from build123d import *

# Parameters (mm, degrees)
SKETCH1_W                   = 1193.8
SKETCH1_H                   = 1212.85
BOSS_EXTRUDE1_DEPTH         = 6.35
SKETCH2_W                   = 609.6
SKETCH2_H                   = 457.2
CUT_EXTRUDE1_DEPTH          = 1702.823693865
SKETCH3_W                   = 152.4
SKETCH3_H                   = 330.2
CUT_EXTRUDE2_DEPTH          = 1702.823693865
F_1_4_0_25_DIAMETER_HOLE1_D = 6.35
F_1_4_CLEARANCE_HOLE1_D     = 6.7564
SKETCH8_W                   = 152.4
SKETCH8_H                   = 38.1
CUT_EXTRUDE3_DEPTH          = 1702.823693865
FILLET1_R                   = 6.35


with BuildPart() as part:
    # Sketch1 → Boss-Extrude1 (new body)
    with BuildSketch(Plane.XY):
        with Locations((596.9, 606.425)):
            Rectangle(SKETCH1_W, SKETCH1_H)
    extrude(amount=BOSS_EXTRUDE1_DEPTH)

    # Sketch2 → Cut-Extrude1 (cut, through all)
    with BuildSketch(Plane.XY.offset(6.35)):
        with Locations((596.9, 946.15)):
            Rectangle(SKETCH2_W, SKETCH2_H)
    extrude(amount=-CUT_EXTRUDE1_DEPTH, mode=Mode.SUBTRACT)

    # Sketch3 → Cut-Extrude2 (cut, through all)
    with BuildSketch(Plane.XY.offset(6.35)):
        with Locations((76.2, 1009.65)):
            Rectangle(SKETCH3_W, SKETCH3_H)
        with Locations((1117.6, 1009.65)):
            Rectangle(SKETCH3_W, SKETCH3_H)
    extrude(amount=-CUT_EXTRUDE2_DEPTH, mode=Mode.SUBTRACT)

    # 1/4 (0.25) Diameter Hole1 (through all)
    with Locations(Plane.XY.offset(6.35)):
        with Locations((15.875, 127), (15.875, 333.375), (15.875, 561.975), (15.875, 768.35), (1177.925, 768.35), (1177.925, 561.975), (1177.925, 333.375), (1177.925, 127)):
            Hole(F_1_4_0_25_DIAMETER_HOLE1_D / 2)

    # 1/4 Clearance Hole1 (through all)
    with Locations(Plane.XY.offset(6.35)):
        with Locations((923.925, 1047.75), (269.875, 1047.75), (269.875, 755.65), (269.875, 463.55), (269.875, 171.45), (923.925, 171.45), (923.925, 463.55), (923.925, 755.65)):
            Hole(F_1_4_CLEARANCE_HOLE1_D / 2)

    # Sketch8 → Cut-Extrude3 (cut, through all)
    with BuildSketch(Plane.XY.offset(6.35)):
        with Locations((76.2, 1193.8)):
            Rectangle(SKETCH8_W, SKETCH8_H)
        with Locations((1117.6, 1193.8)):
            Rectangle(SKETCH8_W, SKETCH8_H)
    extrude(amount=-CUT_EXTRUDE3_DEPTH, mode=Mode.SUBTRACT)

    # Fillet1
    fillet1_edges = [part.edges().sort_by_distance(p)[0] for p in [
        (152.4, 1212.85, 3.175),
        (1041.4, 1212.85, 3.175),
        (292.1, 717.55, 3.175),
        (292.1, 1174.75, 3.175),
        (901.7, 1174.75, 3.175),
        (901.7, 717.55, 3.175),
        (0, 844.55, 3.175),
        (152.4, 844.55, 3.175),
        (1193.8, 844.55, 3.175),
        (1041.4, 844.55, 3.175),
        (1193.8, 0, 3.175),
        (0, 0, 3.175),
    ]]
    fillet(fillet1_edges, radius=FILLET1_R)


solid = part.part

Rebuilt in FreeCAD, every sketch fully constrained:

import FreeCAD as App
import Part
import Sketcher
Q = App.Units.Quantity


def edges_at(feature, points):
    """Names of the edges that pass closest to the given points."""
    edges = feature.Shape.Edges
    near = lambda p: min(range(len(edges)), key=lambda i: edges[i].distToShape(Part.Vertex(*p))[0])
    return sorted({f"Edge{near(p) + 1}" for p in points})


def add_polygon(sketch, points):
    """Adds a closed chain of lines whose ends are joined by coincident constraints."""
    first, n = sketch.GeometryCount, len(points)
    for a, b in zip(points, points[1:] + points[:1]):
        sketch.addGeometry(Part.LineSegment(App.Vector(*a, 0), App.Vector(*b, 0)), False)
    for i in range(n):
        sketch.addConstraint(Sketcher.Constraint("Coincident", first + i, 2, first + (i + 1) % n, 1))

doc = App.newDocument("Part")
params = doc.addObject("Spreadsheet::Sheet", "Params")
for row, (alias, value) in enumerate([
    ("sketch1_width", "47 in"),
    ("sketch1_height", "47.75 in"),
    ("pad1_length", "0.25 in"),
    ("sketch2_width", "24 in"),
    ("sketch2_height", "18 in"),
    ("sketch3_width", "6 in"),
    ("sketch3_height", "13 in"),
    ("sketch4_diameter", "0.25 in"),
    ("hole_diameter", "0.25 in"),
    ("sketch5_diameter", "0.266 in"),
    ("hole2_diameter", "0.266 in"),
    ("sketch6_width", "6 in"),
    ("sketch6_height", "1.5 in"),
    ("fillet_radius", "0.25 in"),
], start=1):
    params.set(f"A{row}", alias)
    params.set(f"B{row}", "=" + value)
    params.setAlias(f"B{row}", alias)

body = doc.addObject("PartDesign::Body", "Body")

# Sketch on XY plane
sketch1 = body.newObject("Sketcher::SketchObject", "Sketch")
sketch1.AttachmentSupport = (doc.getObject("XY_Plane"), [""])
sketch1.MapMode = "FlatFace"
add_polygon(sketch1, [(0, 1213), (0, 0), (1194, 0), (1194, 1213)])  # lines 0-3
sketch1.addConstraint([
    Sketcher.Constraint("Vertical", 0),
    Sketcher.Constraint("Horizontal", 1),
    Sketcher.Constraint("Vertical", 2),
    Sketcher.Constraint("Horizontal", 3),
    Sketcher.Constraint("Coincident", 0, 2, -1, 1),
    Sketcher.Constraint("DistanceX", 1, 1, 1, 2, Q("47 in")),
    Sketcher.Constraint("DistanceY", 0, 2, 0, 1, Q("47.75 in")),
])
sketch1.setExpression("Constraints[9]", "Params.sketch1_width")
sketch1.setExpression("Constraints[10]", "Params.sketch1_height")
pad1 = body.newObject("PartDesign::Pad", "Pad")
pad1.Profile = sketch1
pad1.setExpression("Length", "Params.pad1_length")

# Sketch on XY plane
sketch2 = body.newObject("Sketcher::SketchObject", "Sketch001")
sketch2.AttachmentSupport = (doc.getObject("XY_Plane"), [""])
sketch2.MapMode = "FlatFace"
sketch2.AttachmentOffset = App.Placement(App.Vector(0, 0, 0.25 * 25.4), App.Rotation())
add_polygon(sketch2, [(292, 1175), (292, 718), (902, 718), (902, 1175)])  # lines 0-3
sketch2.addConstraint([
    Sketcher.Constraint("Vertical", 0),
    Sketcher.Constraint("Horizontal", 1),
    Sketcher.Constraint("Vertical", 2),
    Sketcher.Constraint("Horizontal", 3),
    Sketcher.Constraint("DistanceX", 1, 1, 1, 2, Q("24 in")),
    Sketcher.Constraint("DistanceY", 0, 2, 0, 1, Q("18 in")),
    Sketcher.Constraint("DistanceX", -1, 1, 0, 2, Q("11.5 in")),
    Sketcher.Constraint("DistanceY", -1, 1, 0, 2, Q("28.25 in")),
])
sketch2.setExpression("Constraints[8]", "Params.sketch2_width")
sketch2.setExpression("Constraints[9]", "Params.sketch2_height")
pocket1 = body.newObject("PartDesign::Pocket", "Pocket")
pocket1.Profile = sketch2
pocket1.Type = "ThroughAll"

# Sketch on XY plane
sketch3 = body.newObject("Sketcher::SketchObject", "Sketch002")
sketch3.AttachmentSupport = (doc.getObject("XY_Plane"), [""])
sketch3.MapMode = "FlatFace"
sketch3.AttachmentOffset = App.Placement(App.Vector(0, 0, 0.25 * 25.4), App.Rotation())
add_polygon(sketch3, [(0, 1175), (0, 845), (152, 845), (152, 1175)])  # lines 0-3
add_polygon(sketch3, [(1041, 1175), (1041, 845), (1194, 845), (1194, 1175)])  # lines 4-7
sketch3.addConstraint([
    Sketcher.Constraint("Vertical", 0),
    Sketcher.Constraint("Horizontal", 1),
    Sketcher.Constraint("Vertical", 2),
    Sketcher.Constraint("Horizontal", 3),
    Sketcher.Constraint("Vertical", 4),
    Sketcher.Constraint("Horizontal", 5),
    Sketcher.Constraint("Vertical", 6),
    Sketcher.Constraint("Horizontal", 7),
    Sketcher.Constraint("PointOnObject", 0, 2, -2),
    Sketcher.Constraint("Horizontal", 1, 2, 4, 2),
    Sketcher.Constraint("Horizontal", 3, 2, 6, 2),
    Sketcher.Constraint("Equal", 3, 5),
    Sketcher.Constraint("DistanceX", 1, 1, 1, 2, Q("6 in")),
    Sketcher.Constraint("DistanceY", 0, 2, 0, 1, Q("13 in")),
    Sketcher.Constraint("DistanceX", -1, 1, 4, 2, Q("41 in")),
    Sketcher.Constraint("DistanceY", -1, 1, 0, 2, Q("33.25 in")),
])
sketch3.setExpression("Constraints[20]", "Params.sketch3_width")
sketch3.setExpression("Constraints[21]", "Params.sketch3_height")
pocket2 = body.newObject("PartDesign::Pocket", "Pocket001")
pocket2.Profile = sketch3
pocket2.Type = "ThroughAll"

# Sketch on XY plane
sketch4 = body.newObject("Sketcher::SketchObject", "Sketch003")
sketch4.AttachmentSupport = (doc.getObject("XY_Plane"), [""])
sketch4.MapMode = "FlatFace"
sketch4.AttachmentOffset = App.Placement(App.Vector(0, 0, 0.25 * 25.4), App.Rotation())
sketch4.addGeometry([
    Part.Circle(App.Vector(15.9, 127, 0), App.Vector(0, 0, 1), 3.2),  # 0
    Part.Circle(App.Vector(15.9, 333.4, 0), App.Vector(0, 0, 1), 3.2),  # 1
    Part.Circle(App.Vector(15.9, 562, 0), App.Vector(0, 0, 1), 3.2),  # 2
    Part.Circle(App.Vector(15.9, 768.4, 0), App.Vector(0, 0, 1), 3.2),  # 3
    Part.Circle(App.Vector(1177.9, 768.4, 0), App.Vector(0, 0, 1), 3.2),  # 4
    Part.Circle(App.Vector(1177.9, 562, 0), App.Vector(0, 0, 1), 3.2),  # 5
    Part.Circle(App.Vector(1177.9, 333.4, 0), App.Vector(0, 0, 1), 3.2),  # 6
    Part.Circle(App.Vector(1177.9, 127, 0), App.Vector(0, 0, 1), 3.2),  # 7
], False)
sketch4.addConstraint([
    Sketcher.Constraint("Equal", 0, 1),
    Sketcher.Constraint("Equal", 1, 2),
    Sketcher.Constraint("Equal", 2, 3),
    Sketcher.Constraint("Equal", 3, 4),
    Sketcher.Constraint("Equal", 4, 5),
    Sketcher.Constraint("Equal", 5, 6),
    Sketcher.Constraint("Equal", 6, 7),
    Sketcher.Constraint("Horizontal", 3, 3, 4, 3),
    Sketcher.Constraint("Horizontal", 2, 3, 5, 3),
    Sketcher.Constraint("Horizontal", 1, 3, 6, 3),
    Sketcher.Constraint("Horizontal", 0, 3, 7, 3),
    Sketcher.Constraint("Vertical", 0, 3, 1, 3),
    Sketcher.Constraint("Vertical", 1, 3, 2, 3),
    Sketcher.Constraint("Vertical", 2, 3, 3, 3),
    Sketcher.Constraint("Vertical", 4, 3, 5, 3),
    Sketcher.Constraint("Vertical", 5, 3, 6, 3),
    Sketcher.Constraint("Vertical", 6, 3, 7, 3),
    Sketcher.Constraint("Diameter", 0, Q("0.25 in")),
    Sketcher.Constraint("DistanceY", -1, 1, 0, 3, Q("5 in")),
    Sketcher.Constraint("DistanceY", 1, 3, 2, 3, Q("9 in")),
    Sketcher.Constraint("DistanceY", -1, 1, 3, 3, Q("30.25 in")),
    Sketcher.Constraint("DistanceX", 3, 3, 4, 3, Q("45.75 in")),
    Sketcher.Constraint("DistanceX", -1, 1, 0, 3, Q("0.625 in")),
    Sketcher.Constraint("DistanceY", -1, 1, 1, 3, Q("13.125 in")),
])
sketch4.setExpression("Constraints[17]", "Params.sketch4_diameter")
doc.recompute()
hole = body.newObject("PartDesign::Hole", "Hole")
hole.Profile = sketch4
hole.ThreadType = "None"
hole.setExpression("Diameter", "Params.hole_diameter")
hole.DepthType = "ThroughAll"

# Sketch on XY plane
sketch5 = body.newObject("Sketcher::SketchObject", "Sketch004")
sketch5.AttachmentSupport = (doc.getObject("XY_Plane"), [""])
sketch5.MapMode = "FlatFace"
sketch5.AttachmentOffset = App.Placement(App.Vector(0, 0, 0.25 * 25.4), App.Rotation())
sketch5.addGeometry([
    Part.Circle(App.Vector(923.9, 1047.8, 0), App.Vector(0, 0, 1), 3.4),  # 0
    Part.Circle(App.Vector(269.9, 1047.8, 0), App.Vector(0, 0, 1), 3.4),  # 1
    Part.Circle(App.Vector(269.9, 755.6, 0), App.Vector(0, 0, 1), 3.4),  # 2
    Part.Circle(App.Vector(269.9, 463.6, 0), App.Vector(0, 0, 1), 3.4),  # 3
    Part.Circle(App.Vector(269.9, 171.4, 0), App.Vector(0, 0, 1), 3.4),  # 4
    Part.Circle(App.Vector(923.9, 171.4, 0), App.Vector(0, 0, 1), 3.4),  # 5
    Part.Circle(App.Vector(923.9, 463.6, 0), App.Vector(0, 0, 1), 3.4),  # 6
    Part.Circle(App.Vector(923.9, 755.6, 0), App.Vector(0, 0, 1), 3.4),  # 7
], False)
sketch5.addConstraint([
    Sketcher.Constraint("Equal", 0, 1),
    Sketcher.Constraint("Equal", 1, 2),
    Sketcher.Constraint("Equal", 2, 3),
    Sketcher.Constraint("Equal", 3, 4),
    Sketcher.Constraint("Equal", 4, 5),
    Sketcher.Constraint("Equal", 5, 6),
    Sketcher.Constraint("Equal", 6, 7),
    Sketcher.Constraint("Horizontal", 0, 3, 1, 3),
    Sketcher.Constraint("Horizontal", 4, 3, 5, 3),
    Sketcher.Constraint("Horizontal", 3, 3, 6, 3),
    Sketcher.Constraint("Horizontal", 2, 3, 7, 3),
    Sketcher.Constraint("Vertical", 1, 3, 2, 3),
    Sketcher.Constraint("Vertical", 2, 3, 3, 3),
    Sketcher.Constraint("Vertical", 3, 3, 4, 3),
    Sketcher.Constraint("Vertical", 0, 3, 5, 3),
    Sketcher.Constraint("Vertical", 5, 3, 6, 3),
    Sketcher.Constraint("Vertical", 6, 3, 7, 3),
    Sketcher.Constraint("Diameter", 0, Q("0.266 in")),
    Sketcher.Constraint("DistanceY", 3, 3, 1, 3, Q("23 in")),
    Sketcher.Constraint("DistanceY", 4, 3, 2, 3, Q("23 in")),
    Sketcher.Constraint("DistanceY", 2, 3, 1, 3, Q("11.5 in")),
    Sketcher.Constraint("DistanceY", -1, 1, 0, 3, Q("41.25 in")),
    Sketcher.Constraint("DistanceX", 1, 3, 0, 3, Q("25.75 in")),
    Sketcher.Constraint("DistanceX", -1, 1, 0, 3, Q("36.375 in")),
])
sketch5.setExpression("Constraints[17]", "Params.sketch5_diameter")
doc.recompute()
hole2 = body.newObject("PartDesign::Hole", "Hole001")
hole2.Profile = sketch5
hole2.ThreadType = "None"
hole2.setExpression("Diameter", "Params.hole2_diameter")
hole2.DepthType = "ThroughAll"

# Sketch on XY plane
sketch6 = body.newObject("Sketcher::SketchObject", "Sketch005")
sketch6.AttachmentSupport = (doc.getObject("XY_Plane"), [""])
sketch6.MapMode = "FlatFace"
sketch6.AttachmentOffset = App.Placement(App.Vector(0, 0, 0.25 * 25.4), App.Rotation())
add_polygon(sketch6, [(0, 1213), (0, 1175), (152, 1175), (152, 1213)])  # lines 0-3
add_polygon(sketch6, [(1041, 1213), (1041, 1175), (1194, 1175), (1194, 1213)])  # lines 4-7
sketch6.addConstraint([
    Sketcher.Constraint("Vertical", 0),
    Sketcher.Constraint("Horizontal", 1),
    Sketcher.Constraint("Vertical", 2),
    Sketcher.Constraint("Horizontal", 3),
    Sketcher.Constraint("Vertical", 4),
    Sketcher.Constraint("Horizontal", 5),
    Sketcher.Constraint("Vertical", 6),
    Sketcher.Constraint("Horizontal", 7),
    Sketcher.Constraint("PointOnObject", 0, 2, -2),
    Sketcher.Constraint("Horizontal", 1, 2, 4, 2),
    Sketcher.Constraint("Horizontal", 3, 2, 6, 2),
    Sketcher.Constraint("Equal", 3, 5),
    Sketcher.Constraint("DistanceX", 1, 1, 1, 2, Q("6 in")),
    Sketcher.Constraint("DistanceY", 0, 2, 0, 1, Q("1.5 in")),
    Sketcher.Constraint("DistanceX", -1, 1, 4, 2, Q("41 in")),
    Sketcher.Constraint("DistanceY", -1, 1, 0, 2, Q("46.25 in")),
])
sketch6.setExpression("Constraints[20]", "Params.sketch6_width")
sketch6.setExpression("Constraints[21]", "Params.sketch6_height")
pocket3 = body.newObject("PartDesign::Pocket", "Pocket002")
pocket3.Profile = sketch6
pocket3.Type = "ThroughAll"
doc.recompute()

fillet = body.newObject("PartDesign::Fillet", "Fillet")
fillet.Base = (pocket3, edges_at(pocket3, [
    (152.4, 1212.85, 3.175),
    (1041.4, 1212.85, 3.175),
    (292.1, 717.55, 3.175),
    (292.1, 1174.75, 3.175),
    (901.7, 1174.75, 3.175),
    (901.7, 717.55, 3.175),
    (0, 844.55, 3.175),
    (152.4, 844.55, 3.175),
    (1193.8, 844.55, 3.175),
    (1041.4, 844.55, 3.175),
    (1193.8, 0, 3.175),
    (0, 0, 3.175),
]))
fillet.setExpression("Radius", "Params.fillet_radius")

doc.recompute()
